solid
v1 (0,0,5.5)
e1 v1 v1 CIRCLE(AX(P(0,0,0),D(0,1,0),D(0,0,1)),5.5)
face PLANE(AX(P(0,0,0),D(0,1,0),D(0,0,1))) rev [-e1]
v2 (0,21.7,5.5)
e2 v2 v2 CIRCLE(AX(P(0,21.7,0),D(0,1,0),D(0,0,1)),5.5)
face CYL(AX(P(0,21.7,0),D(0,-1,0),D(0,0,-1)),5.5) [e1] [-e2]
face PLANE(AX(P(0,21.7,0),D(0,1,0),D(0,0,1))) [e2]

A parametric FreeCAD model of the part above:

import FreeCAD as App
import Part
import Sketcher

V = App.Vector
Q = App.Units.Quantity

doc = App.newDocument("Part")
body = doc.addObject("PartDesign::Body", "Body")

# Sketch on XZ plane
sketch1 = body.newObject("Sketcher::SketchObject", "Sketch")
sketch1.AttachmentSupport = (doc.getObject("XZ_Plane"), [""])
sketch1.MapMode = "FlatFace"
sketch1.addGeometry(Part.Circle(V(0, 0, 0), V(0, 0, 1), 6), False)
sketch1.addConstraint(Sketcher.Constraint("Coincident", 0, 3, -1, 1))
sketch1.addConstraint(Sketcher.Constraint("Diameter", 0, Q("11 mm")))
pad1 = body.newObject("PartDesign::Pad", "Pad")
pad1.Profile = sketch1
pad1.Length = 21.7
pad1.Reversed = True

doc.recompute()
